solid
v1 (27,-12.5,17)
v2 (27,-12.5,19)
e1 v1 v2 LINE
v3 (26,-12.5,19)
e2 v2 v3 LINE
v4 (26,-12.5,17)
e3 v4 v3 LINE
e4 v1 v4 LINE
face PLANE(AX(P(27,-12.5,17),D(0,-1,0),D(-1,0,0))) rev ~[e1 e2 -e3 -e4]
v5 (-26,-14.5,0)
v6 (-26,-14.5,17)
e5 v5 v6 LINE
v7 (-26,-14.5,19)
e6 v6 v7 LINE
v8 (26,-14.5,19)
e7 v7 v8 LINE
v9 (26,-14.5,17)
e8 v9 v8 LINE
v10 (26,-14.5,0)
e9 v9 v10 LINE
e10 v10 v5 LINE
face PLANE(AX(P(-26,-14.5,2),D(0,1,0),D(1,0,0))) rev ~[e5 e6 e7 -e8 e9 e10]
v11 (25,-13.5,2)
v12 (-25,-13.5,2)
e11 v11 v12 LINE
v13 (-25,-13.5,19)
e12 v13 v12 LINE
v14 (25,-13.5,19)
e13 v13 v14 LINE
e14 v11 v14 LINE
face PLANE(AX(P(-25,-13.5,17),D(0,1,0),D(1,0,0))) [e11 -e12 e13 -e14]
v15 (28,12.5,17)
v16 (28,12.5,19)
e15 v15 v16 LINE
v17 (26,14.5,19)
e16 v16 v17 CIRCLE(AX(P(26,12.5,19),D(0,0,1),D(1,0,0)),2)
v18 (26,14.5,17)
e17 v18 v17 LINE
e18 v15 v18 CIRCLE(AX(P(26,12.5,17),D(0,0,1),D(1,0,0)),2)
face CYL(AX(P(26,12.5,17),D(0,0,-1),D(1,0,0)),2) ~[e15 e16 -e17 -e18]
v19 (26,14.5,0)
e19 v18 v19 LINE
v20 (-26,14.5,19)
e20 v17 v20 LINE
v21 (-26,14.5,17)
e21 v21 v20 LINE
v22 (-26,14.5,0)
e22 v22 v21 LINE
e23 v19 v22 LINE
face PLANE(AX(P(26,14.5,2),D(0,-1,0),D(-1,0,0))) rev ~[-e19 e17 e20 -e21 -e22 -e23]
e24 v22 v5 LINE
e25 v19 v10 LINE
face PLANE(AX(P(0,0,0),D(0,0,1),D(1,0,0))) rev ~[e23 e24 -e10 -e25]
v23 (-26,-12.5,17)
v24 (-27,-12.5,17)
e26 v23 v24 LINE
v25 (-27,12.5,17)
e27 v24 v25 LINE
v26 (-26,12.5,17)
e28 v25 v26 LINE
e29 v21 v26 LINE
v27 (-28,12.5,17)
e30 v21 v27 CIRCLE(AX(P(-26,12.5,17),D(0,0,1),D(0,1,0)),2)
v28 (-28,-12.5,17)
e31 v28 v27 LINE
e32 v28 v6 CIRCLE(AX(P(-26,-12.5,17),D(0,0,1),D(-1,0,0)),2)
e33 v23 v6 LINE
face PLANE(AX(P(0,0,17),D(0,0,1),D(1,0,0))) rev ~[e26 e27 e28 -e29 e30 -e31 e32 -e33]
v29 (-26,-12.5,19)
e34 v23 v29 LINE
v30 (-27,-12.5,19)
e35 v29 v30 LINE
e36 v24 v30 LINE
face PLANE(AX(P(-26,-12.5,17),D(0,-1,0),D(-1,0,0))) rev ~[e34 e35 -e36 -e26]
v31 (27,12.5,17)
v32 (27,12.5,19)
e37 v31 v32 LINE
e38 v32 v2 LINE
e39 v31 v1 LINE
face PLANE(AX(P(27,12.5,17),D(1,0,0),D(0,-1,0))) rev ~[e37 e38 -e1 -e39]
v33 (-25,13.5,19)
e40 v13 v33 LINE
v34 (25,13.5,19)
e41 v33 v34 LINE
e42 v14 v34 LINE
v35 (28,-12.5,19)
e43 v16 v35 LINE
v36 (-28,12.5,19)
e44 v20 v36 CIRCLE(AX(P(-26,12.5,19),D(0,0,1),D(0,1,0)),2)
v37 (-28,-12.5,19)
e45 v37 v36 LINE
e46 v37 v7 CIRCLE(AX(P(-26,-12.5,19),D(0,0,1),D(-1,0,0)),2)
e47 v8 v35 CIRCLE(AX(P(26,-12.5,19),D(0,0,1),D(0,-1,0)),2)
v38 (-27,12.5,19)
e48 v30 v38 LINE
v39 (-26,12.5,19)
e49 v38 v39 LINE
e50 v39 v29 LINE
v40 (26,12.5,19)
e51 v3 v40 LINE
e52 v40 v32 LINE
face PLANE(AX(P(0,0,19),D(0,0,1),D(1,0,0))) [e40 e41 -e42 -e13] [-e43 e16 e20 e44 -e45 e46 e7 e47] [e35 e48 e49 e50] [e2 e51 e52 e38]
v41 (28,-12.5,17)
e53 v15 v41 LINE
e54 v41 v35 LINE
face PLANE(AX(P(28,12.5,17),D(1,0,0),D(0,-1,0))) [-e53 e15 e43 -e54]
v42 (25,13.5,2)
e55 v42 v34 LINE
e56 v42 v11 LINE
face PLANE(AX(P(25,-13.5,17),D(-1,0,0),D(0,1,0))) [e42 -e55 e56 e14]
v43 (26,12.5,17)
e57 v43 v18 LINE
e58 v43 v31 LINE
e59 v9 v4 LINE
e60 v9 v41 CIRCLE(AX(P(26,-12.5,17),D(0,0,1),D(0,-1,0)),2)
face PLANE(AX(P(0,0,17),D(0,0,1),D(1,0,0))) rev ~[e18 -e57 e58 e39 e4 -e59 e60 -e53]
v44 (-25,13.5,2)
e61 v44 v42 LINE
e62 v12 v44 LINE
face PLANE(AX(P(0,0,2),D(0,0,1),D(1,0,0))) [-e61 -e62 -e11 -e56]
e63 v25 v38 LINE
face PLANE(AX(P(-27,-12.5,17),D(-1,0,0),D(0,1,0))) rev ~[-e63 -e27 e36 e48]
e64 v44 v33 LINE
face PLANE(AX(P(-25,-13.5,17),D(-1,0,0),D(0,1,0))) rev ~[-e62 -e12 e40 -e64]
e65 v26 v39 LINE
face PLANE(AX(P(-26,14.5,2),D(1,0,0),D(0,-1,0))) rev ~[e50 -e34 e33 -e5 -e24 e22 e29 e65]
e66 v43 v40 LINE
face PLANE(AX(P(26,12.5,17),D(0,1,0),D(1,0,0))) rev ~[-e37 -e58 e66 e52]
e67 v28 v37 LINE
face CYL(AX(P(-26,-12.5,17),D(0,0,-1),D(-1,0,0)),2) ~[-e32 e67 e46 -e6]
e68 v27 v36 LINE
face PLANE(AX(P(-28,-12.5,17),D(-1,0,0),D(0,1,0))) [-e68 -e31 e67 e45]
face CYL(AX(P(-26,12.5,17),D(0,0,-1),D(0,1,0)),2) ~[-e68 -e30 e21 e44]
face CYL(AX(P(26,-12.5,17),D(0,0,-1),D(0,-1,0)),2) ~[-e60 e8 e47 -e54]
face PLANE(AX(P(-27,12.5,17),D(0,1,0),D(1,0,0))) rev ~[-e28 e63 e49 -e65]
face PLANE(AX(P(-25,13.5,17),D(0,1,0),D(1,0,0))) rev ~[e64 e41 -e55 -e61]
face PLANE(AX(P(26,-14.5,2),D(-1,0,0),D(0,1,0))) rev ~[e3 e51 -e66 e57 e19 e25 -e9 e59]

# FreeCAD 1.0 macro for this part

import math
import FreeCAD as App
import Part
import Sketcher
Q = App.Units.Quantity

doc = App.newDocument("Part")
body = doc.addObject("PartDesign::Body", "Body")

sketch1 = body.newObject("Sketcher::SketchObject", "Sketch")
sketch1.AttachmentSupport = (doc.getObject("XY_Plane"), [""])
sketch1.MapMode = "FlatFace"
sketch1.addGeometry([
    Part.LineSegment(App.Vector(-26, 14, 0), App.Vector(-26, -14, 0)),
    Part.LineSegment(App.Vector(-26, -14, 0), App.Vector(26, -14, 0)),
    Part.LineSegment(App.Vector(26, -14, 0), App.Vector(26, 14, 0)),
    Part.LineSegment(App.Vector(26, 14, 0), App.Vector(-26, 14, 0)),
], False)
sketch1.addConstraint([
    Sketcher.Constraint("Coincident", 0, 2, 1, 1),
    Sketcher.Constraint("Coincident", 1, 2, 2, 1),
    Sketcher.Constraint("Coincident", 2, 2, 3, 1),
    Sketcher.Constraint("Coincident", 3, 2, 0, 1),
    Sketcher.Constraint("Vertical", 0),
    Sketcher.Constraint("Horizontal", 1),
    Sketcher.Constraint("Vertical", 2),
    Sketcher.Constraint("Horizontal", 3),
    Sketcher.Constraint("Symmetric", 0, 2, 2, 2, -1, 1),
    Sketcher.Constraint("DistanceX", 1, 1, 1, 2, Q("52 mm")),
    Sketcher.Constraint("DistanceY", 0, 2, 0, 1, Q("29 mm")),
])
pad1 = body.newObject("PartDesign::Pad", "Pad")
pad1.Profile = sketch1
pad1.Length = 2

sketch2 = body.newObject("Sketcher::SketchObject", "Sketch001")
sketch2.AttachmentSupport = (doc.getObject("XY_Plane"), [""])
sketch2.MapMode = "FlatFace"
sketch2.AttachmentOffset = App.Placement(App.Vector(0, 0, 2), App.Rotation())
sketch2.addGeometry([
    Part.LineSegment(App.Vector(26, 14, 0), App.Vector(-26, 14, 0)),
    Part.LineSegment(App.Vector(-26, 14, 0), App.Vector(-26, -14, 0)),
    Part.LineSegment(App.Vector(-26, -14, 0), App.Vector(26, -14, 0)),
    Part.LineSegment(App.Vector(26, -14, 0), App.Vector(26, 14, 0)),
    Part.LineSegment(App.Vector(-25, -14, 0), App.Vector(-25, 14, 0)),
    Part.LineSegment(App.Vector(-25, 14, 0), App.Vector(25, 14, 0)),
    Part.LineSegment(App.Vector(25, 14, 0), App.Vector(25, -14, 0)),
    Part.LineSegment(App.Vector(25, -14, 0), App.Vector(-25, -14, 0)),
], False)
sketch2.addConstraint([
    Sketcher.Constraint("Coincident", 0, 2, 1, 1),
    Sketcher.Constraint("Coincident", 1, 2, 2, 1),
    Sketcher.Constraint("Coincident", 2, 2, 3, 1),
    Sketcher.Constraint("Coincident", 3, 2, 0, 1),
    Sketcher.Constraint("Coincident", 4, 2, 5, 1),
    Sketcher.Constraint("Coincident", 5, 2, 6, 1),
    Sketcher.Constraint("Coincident", 6, 2, 7, 1),
    Sketcher.Constraint("Coincident", 7, 2, 4, 1),
    Sketcher.Constraint("Horizontal", 0),
    Sketcher.Constraint("Vertical", 1),
    Sketcher.Constraint("Horizontal", 2),
    Sketcher.Constraint("Vertical", 3),
    Sketcher.Constraint("Vertical", 4),
    Sketcher.Constraint("Horizontal", 5),
    Sketcher.Constraint("Vertical", 6),
    Sketcher.Constraint("Horizontal", 7),
    Sketcher.Constraint("Symmetric", 0, 2, 2, 2, -1, 1),
    Sketcher.Constraint("Symmetric", 4, 2, 6, 2, -1, 1),
    Sketcher.Constraint("DistanceX", 0, 2, 4, 2, Q("1 mm")),
    Sketcher.Constraint("DistanceY", 4, 2, 0, 2, Q("1 mm")),
    Sketcher.Constraint("DistanceX", 0, 2, 0, 1, Q("52 mm")),
    Sketcher.Constraint("DistanceY", 1, 2, 1, 1, Q("29 mm")),
])
pad2 = body.newObject("PartDesign::Pad", "Pad001")
pad2.Profile = sketch2
pad2.Length = 15

sketch3 = body.newObject("Sketcher::SketchObject", "Sketch002")
sketch3.AttachmentSupport = (doc.getObject("XY_Plane"), [""])
sketch3.MapMode = "FlatFace"
sketch3.AttachmentOffset = App.Placement(App.Vector(0, 0, 17), App.Rotation())
sketch3.addGeometry([
    Part.LineSegment(App.Vector(26, 14.5, 0), App.Vector(-26, 14.5, 0)),
    Part.ArcOfCircle(Part.Circle(App.Vector(-26, 12.5, 0), App.Vector(0, 0, 1), 2), math.radians(90), math.radians(180)),
    Part.LineSegment(App.Vector(-28, 12.5, 0), App.Vector(-28, -12.5, 0)),
    Part.ArcOfCircle(Part.Circle(App.Vector(-26, -12.5, 0), App.Vector(0, 0, 1), 2), math.radians(180), math.radians(270)),
    Part.LineSegment(App.Vector(-26, -14.5, 0), App.Vector(26, -14.5, 0)),
    Part.ArcOfCircle(Part.Circle(App.Vector(26, -12.5, 0), App.Vector(0, 0, 1), 2), math.radians(-90), math.radians(0)),
    Part.LineSegment(App.Vector(28, -12.5, 0), App.Vector(28, 12.5, 0)),
    Part.ArcOfCircle(Part.Circle(App.Vector(26, 12.5, 0), App.Vector(0, 0, 1), 2), math.radians(0), math.radians(90)),
    Part.LineSegment(App.Vector(26, -12.5, 0), App.Vector(26, 12.5, 0)),
    Part.LineSegment(App.Vector(26, 12.5, 0), App.Vector(27, 12.5, 0)),
    Part.LineSegment(App.Vector(27, 12.5, 0), App.Vector(27, -12.5, 0)),
    Part.LineSegment(App.Vector(27, -12.5, 0), App.Vector(26, -12.5, 0)),
    Part.LineSegment(App.Vector(-26, 12.5, 0), App.Vector(-26, -12.5, 0)),
    Part.LineSegment(App.Vector(-26, -12.5, 0), App.Vector(-27, -12.5, 0)),
    Part.LineSegment(App.Vector(-27, -12.5, 0), App.Vector(-27, 12.5, 0)),
    Part.LineSegment(App.Vector(-27, 12.5, 0), App.Vector(-26, 12.5, 0)),
    Part.LineSegment(App.Vector(-25, -13.5, 0), App.Vector(-25, 13.5, 0)),
    Part.LineSegment(App.Vector(-25, 13.5, 0), App.Vector(25, 13.5, 0)),
    Part.LineSegment(App.Vector(25, 13.5, 0), App.Vector(25, -13.5, 0)),
    Part.LineSegment(App.Vector(25, -13.5, 0), App.Vector(-25, -13.5, 0)),
], False)
sketch3.addConstraint([
    Sketcher.Constraint("Tangent", 0, 2, 1, 1),
    Sketcher.Constraint("Tangent", 1, 2, 2, 1),
    Sketcher.Constraint("Tangent", 2, 2, 3, 1),
    Sketcher.Constraint("Tangent", 3, 2, 4, 1),
    Sketcher.Constraint("Tangent", 4, 2, 5, 1),
    Sketcher.Constraint("Tangent", 5, 2, 6, 1),
    Sketcher.Constraint("Tangent", 6, 2, 7, 1),
    Sketcher.Constraint("Tangent", 7, 2, 0, 1),
    Sketcher.Constraint("Coincident", 8, 2, 9, 1),
    Sketcher.Constraint("Coincident", 9, 2, 10, 1),
    Sketcher.Constraint("Coincident", 10, 2, 11, 1),
    Sketcher.Constraint("Coincident", 11, 2, 8, 1),
    Sketcher.Constraint("Coincident", 12, 2, 13, 1),
    Sketcher.Constraint("Coincident", 13, 2, 14, 1),
    Sketcher.Constraint("Coincident", 14, 2, 15, 1),
    Sketcher.Constraint("Coincident", 15, 2, 12, 1),
    Sketcher.Constraint("Coincident", 16, 2, 17, 1),
    Sketcher.Constraint("Coincident", 17, 2, 18, 1),
    Sketcher.Constraint("Coincident", 18, 2, 19, 1),
    Sketcher.Constraint("Coincident", 19, 2, 16, 1),
    Sketcher.Constraint("Horizontal", 0),
    Sketcher.Constraint("Vertical", 2),
    Sketcher.Constraint("Horizontal", 4),
    Sketcher.Constraint("Vertical", 6),
    Sketcher.Constraint("Vertical", 8),
    Sketcher.Constraint("Horizontal", 9),
    Sketcher.Constraint("Vertical", 10),
    Sketcher.Constraint("Horizontal", 11),
    Sketcher.Constraint("Vertical", 12),
    Sketcher.Constraint("Horizontal", 13),
    Sketcher.Constraint("Vertical", 14),
    Sketcher.Constraint("Horizontal", 15),
    Sketcher.Constraint("Vertical", 16),
    Sketcher.Constraint("Horizontal", 17),
    Sketcher.Constraint("Vertical", 18),
    Sketcher.Constraint("Horizontal", 19),
    Sketcher.Constraint("Coincident", 8, 2, 7, 3),
    Sketcher.Constraint("Coincident", 11, 2, 5, 3),
    Sketcher.Constraint("Coincident", 12, 2, 3, 3),
    Sketcher.Constraint("Coincident", 15, 2, 1, 3),
    Sketcher.Constraint("Equal", 3, 5),
    Sketcher.Constraint("Symmetric", 1, 3, 5, 3, -1, 1),
    Sketcher.Constraint("Symmetric", 16, 2, 18, 2, -1, 1),
    Sketcher.Constraint("Equal", 11, 13),
    Sketcher.Constraint("Radius", 1, Q("2 mm")),
    Sketcher.Constraint("DistanceX", 9, 1, 9, 2, Q("1 mm")),
    Sketcher.Constraint("DistanceX", 1, 3, 16, 2, Q("1 mm")),
    Sketcher.Constraint("DistanceY", 1, 3, 16, 2, Q("1 mm")),
    Sketcher.Constraint("DistanceX", 0, 2, 0, 1, Q("52 mm")),
    Sketcher.Constraint("DistanceY", 2, 2, 2, 1, Q("25 mm")),
])
pad3 = body.newObject("PartDesign::Pad", "Pad002")
pad3.Profile = sketch3
pad3.Length = 2

doc.recompute()
